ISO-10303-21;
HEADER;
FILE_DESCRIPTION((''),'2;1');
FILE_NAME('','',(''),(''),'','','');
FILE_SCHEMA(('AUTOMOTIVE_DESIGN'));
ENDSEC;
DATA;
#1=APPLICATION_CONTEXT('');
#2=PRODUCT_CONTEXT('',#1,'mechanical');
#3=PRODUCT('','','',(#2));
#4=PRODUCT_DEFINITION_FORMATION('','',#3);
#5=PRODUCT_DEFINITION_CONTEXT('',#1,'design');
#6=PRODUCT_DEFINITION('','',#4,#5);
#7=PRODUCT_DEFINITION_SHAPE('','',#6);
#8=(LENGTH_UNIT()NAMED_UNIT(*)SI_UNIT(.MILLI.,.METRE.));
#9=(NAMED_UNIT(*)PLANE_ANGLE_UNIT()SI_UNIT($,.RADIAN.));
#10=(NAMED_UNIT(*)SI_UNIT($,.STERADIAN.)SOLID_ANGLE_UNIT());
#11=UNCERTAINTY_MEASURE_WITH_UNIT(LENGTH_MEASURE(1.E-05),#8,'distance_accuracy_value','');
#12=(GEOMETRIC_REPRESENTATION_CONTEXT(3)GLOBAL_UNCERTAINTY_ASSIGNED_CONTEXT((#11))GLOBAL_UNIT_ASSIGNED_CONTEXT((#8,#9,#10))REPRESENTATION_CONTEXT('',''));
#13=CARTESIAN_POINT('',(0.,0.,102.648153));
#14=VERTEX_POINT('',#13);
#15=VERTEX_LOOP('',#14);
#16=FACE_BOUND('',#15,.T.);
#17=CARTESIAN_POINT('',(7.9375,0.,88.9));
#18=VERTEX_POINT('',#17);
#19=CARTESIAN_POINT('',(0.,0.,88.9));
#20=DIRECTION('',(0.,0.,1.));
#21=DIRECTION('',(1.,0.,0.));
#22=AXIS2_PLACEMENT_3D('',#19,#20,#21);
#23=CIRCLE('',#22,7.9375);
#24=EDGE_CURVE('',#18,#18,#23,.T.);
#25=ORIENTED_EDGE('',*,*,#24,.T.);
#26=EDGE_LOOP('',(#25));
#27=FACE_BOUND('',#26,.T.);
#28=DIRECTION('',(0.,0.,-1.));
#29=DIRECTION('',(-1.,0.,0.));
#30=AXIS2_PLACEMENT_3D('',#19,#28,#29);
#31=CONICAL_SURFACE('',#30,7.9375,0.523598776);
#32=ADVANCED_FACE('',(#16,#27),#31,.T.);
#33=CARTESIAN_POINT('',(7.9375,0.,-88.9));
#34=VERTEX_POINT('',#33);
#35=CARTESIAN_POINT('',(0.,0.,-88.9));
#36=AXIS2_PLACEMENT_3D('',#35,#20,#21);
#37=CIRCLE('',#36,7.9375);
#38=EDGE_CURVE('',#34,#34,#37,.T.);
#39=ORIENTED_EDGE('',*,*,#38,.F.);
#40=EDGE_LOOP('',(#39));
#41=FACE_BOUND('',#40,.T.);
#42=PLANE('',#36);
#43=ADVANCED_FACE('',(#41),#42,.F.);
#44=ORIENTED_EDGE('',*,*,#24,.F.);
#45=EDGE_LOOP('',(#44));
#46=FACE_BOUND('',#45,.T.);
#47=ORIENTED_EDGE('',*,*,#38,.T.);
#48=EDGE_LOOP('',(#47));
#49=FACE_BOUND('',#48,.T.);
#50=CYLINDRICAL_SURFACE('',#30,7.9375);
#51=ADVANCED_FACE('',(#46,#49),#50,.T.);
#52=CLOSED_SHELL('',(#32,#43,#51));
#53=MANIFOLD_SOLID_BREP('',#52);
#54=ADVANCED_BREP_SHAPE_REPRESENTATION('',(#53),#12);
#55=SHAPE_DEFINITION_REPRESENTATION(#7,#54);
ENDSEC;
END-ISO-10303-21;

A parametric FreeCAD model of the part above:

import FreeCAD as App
import Part
import Sketcher
Q = App.Units.Quantity


def add_polygon(sketch, points):
    """Adds a closed chain of lines whose ends are joined by coincident constraints."""
    first, n = sketch.GeometryCount, len(points)
    for a, b in zip(points, points[1:] + points[:1]):
        sketch.addGeometry(Part.LineSegment(App.Vector(*a, 0), App.Vector(*b, 0)), False)
    for i in range(n):
        sketch.addConstraint(Sketcher.Constraint("Coincident", first + i, 2, first + (i + 1) % n, 1))

doc = App.newDocument("Part")
body = doc.addObject("PartDesign::Body", "Body")

# Sketch on XY plane
sketch1 = body.newObject("Sketcher::SketchObject", "Sketch")
sketch1.AttachmentSupport = (doc.getObject("XY_Plane"), [""])
sketch1.MapMode = "FlatFace"
sketch1.addGeometry(Part.Circle(App.Vector(0, 0, 0), App.Vector(0, 0, 1), 8), False)
sketch1.addConstraint(Sketcher.Constraint("Coincident", 0, 3, -1, 1))
sketch1.addConstraint(Sketcher.Constraint("Diameter", 0, Q("0.625 in")))
pad1 = body.newObject("PartDesign::Pad", "Pad")
pad1.Profile = sketch1
pad1.Length = Q("7 in")
pad1.Midplane = True

# Sketch on YZ plane
sketch2 = body.newObject("Sketcher::SketchObject", "Sketch001")
sketch2.AttachmentSupport = (doc.getObject("YZ_Plane"), [""])
sketch2.MapMode = "FlatFace"
add_polygon(sketch2, [(8, 89), (0, 103), (0, 89)])  # lines 0-2
sketch2.addConstraint(Sketcher.Constraint("Vertical", 1))
sketch2.addConstraint(Sketcher.Constraint("Horizontal", 2))
sketch2.addConstraint(Sketcher.Constraint("PointOnObject", 0, 2, -2))
sketch2.addConstraint(Sketcher.Constraint("Angle", 0, Q("120 deg")))
sketch2.addConstraint(Sketcher.Constraint("DistanceY", -1, 1, 1, 2, Q("3.5 in")))
sketch2.addConstraint(Sketcher.Constraint("DistanceX", 2, 1, 2, 2, Q("0.3125 in")))
revolution = body.newObject("PartDesign::Revolution", "Revolution")
revolution.Profile = sketch2
revolution.ReferenceAxis = (sketch2, ["V_Axis"])
revolution.Angle = 360

doc.recompute()
